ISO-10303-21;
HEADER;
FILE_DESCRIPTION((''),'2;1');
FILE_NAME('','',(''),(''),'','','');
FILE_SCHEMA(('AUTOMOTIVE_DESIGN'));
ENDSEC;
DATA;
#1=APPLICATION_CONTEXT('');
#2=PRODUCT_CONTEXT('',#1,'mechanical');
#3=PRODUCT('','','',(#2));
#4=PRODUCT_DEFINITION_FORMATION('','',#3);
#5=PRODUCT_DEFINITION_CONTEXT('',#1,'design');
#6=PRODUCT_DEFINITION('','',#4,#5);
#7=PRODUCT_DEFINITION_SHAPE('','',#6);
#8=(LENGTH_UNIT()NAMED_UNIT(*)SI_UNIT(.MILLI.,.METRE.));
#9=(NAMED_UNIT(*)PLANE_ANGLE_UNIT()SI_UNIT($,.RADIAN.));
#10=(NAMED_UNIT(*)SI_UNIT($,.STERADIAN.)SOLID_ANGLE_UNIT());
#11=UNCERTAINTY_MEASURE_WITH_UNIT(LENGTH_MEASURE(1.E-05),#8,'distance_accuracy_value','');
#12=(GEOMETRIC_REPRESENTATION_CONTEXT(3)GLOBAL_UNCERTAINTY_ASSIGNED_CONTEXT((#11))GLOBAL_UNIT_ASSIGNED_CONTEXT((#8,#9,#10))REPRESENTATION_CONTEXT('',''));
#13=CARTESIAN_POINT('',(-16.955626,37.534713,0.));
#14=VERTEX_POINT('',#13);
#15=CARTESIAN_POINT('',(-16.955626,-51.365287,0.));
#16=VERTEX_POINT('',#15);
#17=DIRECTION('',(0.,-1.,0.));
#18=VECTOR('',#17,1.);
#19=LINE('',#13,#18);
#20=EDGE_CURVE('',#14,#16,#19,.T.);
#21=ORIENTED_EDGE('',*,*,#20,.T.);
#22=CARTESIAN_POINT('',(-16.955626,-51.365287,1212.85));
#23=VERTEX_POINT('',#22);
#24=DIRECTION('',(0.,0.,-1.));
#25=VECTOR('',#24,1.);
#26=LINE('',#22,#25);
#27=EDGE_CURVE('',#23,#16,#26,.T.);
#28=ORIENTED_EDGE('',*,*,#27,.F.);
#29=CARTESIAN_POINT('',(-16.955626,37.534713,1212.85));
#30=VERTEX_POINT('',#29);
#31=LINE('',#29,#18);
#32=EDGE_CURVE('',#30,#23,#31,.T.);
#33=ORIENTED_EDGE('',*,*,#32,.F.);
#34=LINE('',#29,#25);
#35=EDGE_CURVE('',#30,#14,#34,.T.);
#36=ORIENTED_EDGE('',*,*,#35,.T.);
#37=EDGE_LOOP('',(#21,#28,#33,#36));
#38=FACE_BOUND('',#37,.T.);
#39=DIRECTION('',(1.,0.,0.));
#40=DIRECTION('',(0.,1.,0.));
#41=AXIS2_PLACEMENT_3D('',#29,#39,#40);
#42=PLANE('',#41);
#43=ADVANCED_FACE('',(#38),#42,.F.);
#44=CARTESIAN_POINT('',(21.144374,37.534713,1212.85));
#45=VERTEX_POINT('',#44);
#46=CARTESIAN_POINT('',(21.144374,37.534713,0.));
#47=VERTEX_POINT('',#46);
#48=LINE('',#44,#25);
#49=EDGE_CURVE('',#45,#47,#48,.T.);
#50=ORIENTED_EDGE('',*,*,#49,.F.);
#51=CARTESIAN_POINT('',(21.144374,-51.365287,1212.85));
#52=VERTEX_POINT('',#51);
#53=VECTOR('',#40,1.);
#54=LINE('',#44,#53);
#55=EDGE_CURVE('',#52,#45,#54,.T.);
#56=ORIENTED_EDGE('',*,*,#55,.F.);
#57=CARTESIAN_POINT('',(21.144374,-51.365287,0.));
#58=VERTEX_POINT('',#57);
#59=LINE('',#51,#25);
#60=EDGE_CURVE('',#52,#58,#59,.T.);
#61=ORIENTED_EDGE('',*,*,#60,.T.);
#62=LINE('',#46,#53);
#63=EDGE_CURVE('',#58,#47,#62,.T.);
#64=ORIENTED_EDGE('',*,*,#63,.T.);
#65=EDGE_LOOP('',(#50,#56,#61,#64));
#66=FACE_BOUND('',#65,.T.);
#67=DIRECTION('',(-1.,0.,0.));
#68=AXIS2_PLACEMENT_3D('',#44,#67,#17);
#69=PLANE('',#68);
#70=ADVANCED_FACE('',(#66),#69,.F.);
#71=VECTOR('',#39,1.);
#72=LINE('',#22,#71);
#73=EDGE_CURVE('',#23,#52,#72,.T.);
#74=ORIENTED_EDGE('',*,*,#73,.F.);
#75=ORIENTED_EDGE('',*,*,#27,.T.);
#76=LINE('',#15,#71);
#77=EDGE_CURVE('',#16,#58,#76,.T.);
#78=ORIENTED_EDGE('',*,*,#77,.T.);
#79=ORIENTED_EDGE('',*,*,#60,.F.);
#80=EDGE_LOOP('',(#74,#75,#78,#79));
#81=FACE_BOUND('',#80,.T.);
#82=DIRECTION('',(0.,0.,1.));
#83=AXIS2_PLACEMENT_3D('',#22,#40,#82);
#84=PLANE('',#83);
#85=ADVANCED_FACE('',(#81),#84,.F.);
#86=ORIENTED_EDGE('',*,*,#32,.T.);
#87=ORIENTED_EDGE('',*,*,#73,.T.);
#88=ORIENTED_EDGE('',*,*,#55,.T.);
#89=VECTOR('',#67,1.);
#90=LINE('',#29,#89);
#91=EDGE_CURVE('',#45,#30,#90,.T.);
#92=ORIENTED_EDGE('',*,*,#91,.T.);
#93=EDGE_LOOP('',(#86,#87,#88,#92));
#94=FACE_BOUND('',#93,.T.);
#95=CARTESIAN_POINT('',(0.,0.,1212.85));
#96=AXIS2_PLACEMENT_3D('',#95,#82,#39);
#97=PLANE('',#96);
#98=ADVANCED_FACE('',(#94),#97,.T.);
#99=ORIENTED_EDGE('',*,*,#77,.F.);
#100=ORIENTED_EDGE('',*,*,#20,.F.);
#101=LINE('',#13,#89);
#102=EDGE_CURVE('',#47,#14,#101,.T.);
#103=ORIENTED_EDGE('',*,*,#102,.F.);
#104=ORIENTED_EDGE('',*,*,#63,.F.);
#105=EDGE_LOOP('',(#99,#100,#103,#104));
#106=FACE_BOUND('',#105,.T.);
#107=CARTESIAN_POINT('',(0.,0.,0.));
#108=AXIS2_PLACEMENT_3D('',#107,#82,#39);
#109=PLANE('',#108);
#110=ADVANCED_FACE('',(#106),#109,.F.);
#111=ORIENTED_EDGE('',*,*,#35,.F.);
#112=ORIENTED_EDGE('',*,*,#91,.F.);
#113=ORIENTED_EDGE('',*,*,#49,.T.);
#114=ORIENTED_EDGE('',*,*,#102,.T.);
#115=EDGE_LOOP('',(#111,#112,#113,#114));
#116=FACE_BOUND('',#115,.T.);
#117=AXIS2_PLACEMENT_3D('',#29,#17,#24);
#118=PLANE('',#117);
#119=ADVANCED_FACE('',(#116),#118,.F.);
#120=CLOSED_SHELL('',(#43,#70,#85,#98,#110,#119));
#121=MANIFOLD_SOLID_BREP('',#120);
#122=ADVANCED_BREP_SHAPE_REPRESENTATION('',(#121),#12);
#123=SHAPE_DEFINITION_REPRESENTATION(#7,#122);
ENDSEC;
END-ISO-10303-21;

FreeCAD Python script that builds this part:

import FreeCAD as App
import Part
import Sketcher
from FreeCAD import Vector
Q = App.Units.Quantity

doc = App.newDocument("Part")
body = doc.addObject("PartDesign::Body", "Body")

# Sketch on XY plane
sketch1 = body.newObject("Sketcher::SketchObject", "Sketch")
sketch1.AttachmentSupport = (doc.getObject("XY_Plane"), [""])
sketch1.MapMode = "FlatFace"
sketch1.addGeometry([
    Part.LineSegment(Vector(-17, 38, 0), Vector(-17, -51, 0)),
    Part.LineSegment(Vector(-17, -51, 0), Vector(21, -51, 0)),
    Part.LineSegment(Vector(21, -51, 0), Vector(21, 38, 0)),
    Part.LineSegment(Vector(21, 38, 0), Vector(-17, 38, 0)),
], False)
sketch1.addConstraint([
    Sketcher.Constraint("Coincident", 0, 2, 1, 1),
    Sketcher.Constraint("Coincident", 1, 2, 2, 1),
    Sketcher.Constraint("Coincident", 2, 2, 3, 1),
    Sketcher.Constraint("Coincident", 3, 2, 0, 1),
    Sketcher.Constraint("Vertical", 0),
    Sketcher.Constraint("Horizontal", 1),
    Sketcher.Constraint("Vertical", 2),
    Sketcher.Constraint("Horizontal", 3),
    Sketcher.Constraint("DistanceX", 1, 1, 1, 2, Q("1.5 in")),
    Sketcher.Constraint("DistanceY", 0, 2, 0, 1, Q("3.5 in")),
    Sketcher.Constraint("DistanceX", 0, 2, -1, 1, 16.955626),
    Sketcher.Constraint("DistanceY", 0, 2, -1, 1, 51.365287),
])
pad1 = body.newObject("PartDesign::Pad", "Pad")
pad1.Profile = sketch1
pad1.Length = Q("47.75 in")

doc.recompute()
